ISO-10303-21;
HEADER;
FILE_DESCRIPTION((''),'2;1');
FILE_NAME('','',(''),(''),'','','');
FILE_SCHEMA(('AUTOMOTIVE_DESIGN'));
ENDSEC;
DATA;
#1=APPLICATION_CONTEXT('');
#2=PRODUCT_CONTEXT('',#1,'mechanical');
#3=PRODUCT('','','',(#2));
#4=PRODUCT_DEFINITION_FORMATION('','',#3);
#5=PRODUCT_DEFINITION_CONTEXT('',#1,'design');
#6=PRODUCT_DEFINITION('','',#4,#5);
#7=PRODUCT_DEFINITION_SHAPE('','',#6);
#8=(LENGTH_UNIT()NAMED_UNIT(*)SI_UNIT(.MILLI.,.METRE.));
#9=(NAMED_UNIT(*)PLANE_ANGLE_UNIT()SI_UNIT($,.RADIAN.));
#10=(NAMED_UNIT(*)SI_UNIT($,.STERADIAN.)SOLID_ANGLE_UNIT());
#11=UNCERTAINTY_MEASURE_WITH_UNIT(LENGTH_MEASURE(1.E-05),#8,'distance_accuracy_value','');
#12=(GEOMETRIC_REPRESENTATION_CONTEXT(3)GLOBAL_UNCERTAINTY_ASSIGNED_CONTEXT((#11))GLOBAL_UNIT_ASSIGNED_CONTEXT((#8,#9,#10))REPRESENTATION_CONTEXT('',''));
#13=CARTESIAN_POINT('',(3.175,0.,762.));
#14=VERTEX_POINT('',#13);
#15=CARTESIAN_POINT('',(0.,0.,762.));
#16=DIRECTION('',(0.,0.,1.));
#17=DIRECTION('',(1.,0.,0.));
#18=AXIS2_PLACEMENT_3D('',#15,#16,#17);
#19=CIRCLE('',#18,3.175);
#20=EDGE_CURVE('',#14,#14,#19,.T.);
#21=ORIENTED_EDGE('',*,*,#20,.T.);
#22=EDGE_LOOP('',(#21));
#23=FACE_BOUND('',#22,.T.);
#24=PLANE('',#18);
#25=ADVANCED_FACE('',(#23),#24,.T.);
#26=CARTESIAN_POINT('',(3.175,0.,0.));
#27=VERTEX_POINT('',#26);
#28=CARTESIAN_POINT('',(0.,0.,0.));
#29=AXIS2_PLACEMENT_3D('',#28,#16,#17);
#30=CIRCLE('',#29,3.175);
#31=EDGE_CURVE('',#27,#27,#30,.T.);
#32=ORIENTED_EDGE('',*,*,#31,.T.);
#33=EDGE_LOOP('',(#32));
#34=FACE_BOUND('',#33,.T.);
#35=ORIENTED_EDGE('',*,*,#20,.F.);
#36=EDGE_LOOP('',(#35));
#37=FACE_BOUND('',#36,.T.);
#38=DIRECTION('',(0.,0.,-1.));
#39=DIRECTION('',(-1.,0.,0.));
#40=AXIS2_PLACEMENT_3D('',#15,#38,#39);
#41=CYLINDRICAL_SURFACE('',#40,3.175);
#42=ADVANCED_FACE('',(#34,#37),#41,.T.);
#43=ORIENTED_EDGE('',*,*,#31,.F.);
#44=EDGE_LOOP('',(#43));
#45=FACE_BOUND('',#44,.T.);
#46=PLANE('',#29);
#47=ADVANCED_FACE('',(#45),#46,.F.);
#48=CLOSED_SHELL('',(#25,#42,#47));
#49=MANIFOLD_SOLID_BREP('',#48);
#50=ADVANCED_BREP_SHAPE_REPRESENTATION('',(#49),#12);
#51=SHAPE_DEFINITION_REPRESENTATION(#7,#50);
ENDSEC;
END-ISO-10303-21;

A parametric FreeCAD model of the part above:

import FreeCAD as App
import Part
import Sketcher

V = App.Vector
Q = App.Units.Quantity

doc = App.newDocument("Part")
body = doc.addObject("PartDesign::Body", "Body")

sketch1 = body.newObject("Sketcher::SketchObject", "Sketch")
sketch1.AttachmentSupport = (doc.getObject("XY_Plane"), [""])
sketch1.MapMode = "FlatFace"
sketch1.addGeometry(Part.Circle(V(0, 0, 0), V(0, 0, 1), 3.175), False)
sketch1.addConstraint([
    Sketcher.Constraint("Coincident", 0, 3, -1, 1),
    Sketcher.Constraint("Diameter", 0, Q("0.25 in")),
])
pad1 = body.newObject("PartDesign::Pad", "Pad")
pad1.Profile = sketch1
pad1.Length = Q("30 in")

doc.recompute()
